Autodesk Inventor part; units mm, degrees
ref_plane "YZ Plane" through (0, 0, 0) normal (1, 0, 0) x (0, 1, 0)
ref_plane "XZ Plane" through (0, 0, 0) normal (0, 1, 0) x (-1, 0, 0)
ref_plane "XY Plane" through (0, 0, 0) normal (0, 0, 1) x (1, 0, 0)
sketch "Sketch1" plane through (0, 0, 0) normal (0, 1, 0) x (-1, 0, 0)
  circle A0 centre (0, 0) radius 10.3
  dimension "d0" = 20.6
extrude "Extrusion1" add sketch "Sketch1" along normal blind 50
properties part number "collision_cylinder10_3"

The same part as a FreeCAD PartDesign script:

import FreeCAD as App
import Part
import Sketcher
Q = App.Units.Quantity

doc = App.newDocument("Part")
body = doc.addObject("PartDesign::Body", "Body")

# Sketch on XZ plane
sketch1 = body.newObject("Sketcher::SketchObject", "Sketch")
sketch1.AttachmentSupport = (doc.getObject("XZ_Plane"), [""])
sketch1.MapMode = "FlatFace"
sketch1.addGeometry(Part.Circle(App.Vector(0, 0, 0), App.Vector(0, 0, 1), 10), False)
sketch1.addConstraint([
    Sketcher.Constraint("Coincident", 0, 3, -1, 1),
    Sketcher.Constraint("Diameter", 0, Q("20.6 mm")),
])
pad1 = body.newObject("PartDesign::Pad", "Pad")
pad1.Profile = sketch1
pad1.Length = 50
pad1.Reversed = True

doc.recompute()
